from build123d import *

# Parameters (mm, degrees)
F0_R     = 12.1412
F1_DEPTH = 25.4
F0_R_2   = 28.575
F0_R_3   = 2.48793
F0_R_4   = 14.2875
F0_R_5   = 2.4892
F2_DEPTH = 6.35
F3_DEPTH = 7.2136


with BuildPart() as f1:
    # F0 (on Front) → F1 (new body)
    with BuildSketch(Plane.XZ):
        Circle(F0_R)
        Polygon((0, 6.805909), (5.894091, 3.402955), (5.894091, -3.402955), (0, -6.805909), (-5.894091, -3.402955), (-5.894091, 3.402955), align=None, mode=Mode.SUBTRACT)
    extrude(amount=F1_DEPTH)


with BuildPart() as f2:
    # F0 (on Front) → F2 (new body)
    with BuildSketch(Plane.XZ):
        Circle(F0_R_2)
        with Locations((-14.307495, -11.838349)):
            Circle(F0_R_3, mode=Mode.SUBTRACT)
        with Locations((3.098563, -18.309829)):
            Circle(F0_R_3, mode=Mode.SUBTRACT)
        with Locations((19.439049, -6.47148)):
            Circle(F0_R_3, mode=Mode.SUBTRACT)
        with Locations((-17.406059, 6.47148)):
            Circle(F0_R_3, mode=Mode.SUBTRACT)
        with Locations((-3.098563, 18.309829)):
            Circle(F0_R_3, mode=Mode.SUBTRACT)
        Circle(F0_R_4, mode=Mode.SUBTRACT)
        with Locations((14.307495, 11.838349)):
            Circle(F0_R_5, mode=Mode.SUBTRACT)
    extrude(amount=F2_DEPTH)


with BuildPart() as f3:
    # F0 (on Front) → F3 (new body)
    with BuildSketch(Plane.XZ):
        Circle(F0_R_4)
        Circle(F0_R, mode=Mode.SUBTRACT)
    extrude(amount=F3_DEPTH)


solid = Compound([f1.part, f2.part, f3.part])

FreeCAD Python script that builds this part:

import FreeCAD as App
import Part
import Sketcher

V = App.Vector
Q = App.Units.Quantity


def add_polygon(sketch, points):
    """Adds a closed chain of lines whose ends are joined by coincident constraints."""
    first, n = sketch.GeometryCount, len(points)
    for a, b in zip(points, points[1:] + points[:1]):
        sketch.addGeometry(Part.LineSegment(App.Vector(*a, 0), App.Vector(*b, 0)), False)
    for i in range(n):
        sketch.addConstraint(Sketcher.Constraint("Coincident", first + i, 2, first + (i + 1) % n, 1))

doc = App.newDocument("Part")
body = doc.addObject("PartDesign::Body", "Body")

# Sketch on XZ plane
sketch1 = doc.addObject("Sketcher::SketchObject", "Sketch")
body.addObject(sketch1)
sketch1.AttachmentSupport = (doc.XZ_Plane, [""])
sketch1.MapMode = "FlatFace"
sketch1.addGeometry(Part.Circle(V(0, 0, 0), V(0, 0, 1), 12), False)  # 0
add_polygon(sketch1, [(-6, 3), (0, 7), (6, 3), (6, -3), (0, -7), (-6, -3)])  # lines 1-6
sketch1.addConstraint([
    Sketcher.Constraint("Vertical", 3),
    Sketcher.Constraint("Vertical", 6),
    Sketcher.Constraint("Coincident", 0, 3, -1, 1),
    Sketcher.Constraint("Symmetric", 1, 2, 4, 2, -1, 1),
    Sketcher.Constraint("Symmetric", 2, 2, 5, 2, -1, 1),
    Sketcher.Constraint("PointOnObject", 1, 2, -2),
    Sketcher.Constraint("Parallel", 1, 4),
    Sketcher.Constraint("Horizontal", 3, 2, 5, 2),
    Sketcher.Constraint("Diameter", 0, Q("0.956 in")),
    Sketcher.Constraint("Angle", 1, Q("29.999993 deg")),
    Sketcher.Constraint("DistanceY", 3, 2, 3, 1, Q("6.80591 mm")),
    Sketcher.Constraint("Distance", 1, Q("6.80591 mm")),
])
pad1 = doc.addObject("PartDesign::Pad", "Pad")
body.addObject(pad1)
pad1.Profile = sketch1
pad1.Length = Q("1 in")
body2 = doc.addObject("PartDesign::Body", "Body001")

# Sketch on XZ plane
sketch2 = doc.addObject("Sketcher::SketchObject", "Sketch001")
body2.addObject(sketch2)
sketch2.AttachmentSupport = (doc.getObject("XZ_Plane001"), [""])
sketch2.MapMode = "FlatFace"
sketch2.addGeometry([
    Part.Circle(V(0, 0, 0), V(0, 0, 1), 28.6),  # 0
    Part.Circle(V(-14.3, -11.8, 0), V(0, 0, 1), 2.5),  # 1
    Part.Circle(V(3.1, -18.3, 0), V(0, 0, 1), 2.5),  # 2
    Part.Circle(V(19.4, -6.5, 0), V(0, 0, 1), 2.5),  # 3
    Part.Circle(V(-17.4, 6.5, 0), V(0, 0, 1), 2.5),  # 4
    Part.Circle(V(0, 0, 0), V(0, 0, 1), 14.3),  # 5
    Part.Circle(V(-3.1, 18.3, 0), V(0, 0, 1), 2.5),  # 6
    Part.Circle(V(14.3, 11.8, 0), V(0, 0, 1), 2.5),  # 7
], False)
sketch2.addConstraint([
    Sketcher.Constraint("Coincident", 0, 3, -1, 1),
    Sketcher.Constraint("Coincident", 5, 3, -1, 1),
    Sketcher.Constraint("Equal", 1, 2),
    Sketcher.Constraint("Equal", 2, 3),
    Sketcher.Constraint("Equal", 3, 4),
    Sketcher.Constraint("Equal", 4, 6),
    Sketcher.Constraint("Symmetric", 2, 3, 6, 3, -1, 1),
    Sketcher.Constraint("Symmetric", 1, 3, 7, 3, -1, 1),
    Sketcher.Constraint("Diameter", 0, Q("2.25 in")),
    Sketcher.Constraint("Diameter", 5, Q("1.125 in")),
    Sketcher.Constraint("Diameter", 7, Q("0.196 in")),
    Sketcher.Constraint("Diameter", 1, Q("0.1959 in")),
    Sketcher.Constraint("DistanceY", 1, 3, -1, 1, Q("11.838349 mm")),
    Sketcher.Constraint("DistanceY", 2, 3, -1, 1, Q("18.309829 mm")),
    Sketcher.Constraint("DistanceX", -1, 1, 3, 3, Q("19.439049 mm")),
    Sketcher.Constraint("DistanceY", 3, 3, -1, 1, Q("6.47148 mm")),
    Sketcher.Constraint("DistanceX", 4, 3, -1, 1, Q("17.406059 mm")),
    Sketcher.Constraint("DistanceY", -1, 1, 4, 3, Q("6.47148 mm")),
    Sketcher.Constraint("DistanceX", 4, 3, 2, 3, Q("20.504622 mm")),
    Sketcher.Constraint("DistanceX", 1, 3, 6, 3, Q("11.208932 mm")),
])
pad2 = doc.addObject("PartDesign::Pad", "Pad001")
body2.addObject(pad2)
pad2.Profile = sketch2
pad2.Length = Q("0.25 in")
body3 = doc.addObject("PartDesign::Body", "Body002")

# Sketch on XZ plane
sketch3 = doc.addObject("Sketcher::SketchObject", "Sketch002")
body3.addObject(sketch3)
sketch3.AttachmentSupport = (doc.getObject("XZ_Plane002"), [""])
sketch3.MapMode = "FlatFace"
sketch3.addGeometry([
    Part.Circle(V(0, 0, 0), V(0, 0, 1), 14),
    Part.Circle(V(0, 0, 0), V(0, 0, 1), 12),
], False)
sketch3.addConstraint([
    Sketcher.Constraint("Coincident", 0, 3, -1, 1),
    Sketcher.Constraint("Coincident", 1, 3, -1, 1),
    Sketcher.Constraint("Diameter", 0, Q("1.125 in")),
    Sketcher.Constraint("Diameter", 1, Q("0.956 in")),
])
pad3 = doc.addObject("PartDesign::Pad", "Pad002")
body3.addObject(pad3)
pad3.Profile = sketch3
pad3.Length = Q("0.284 in")

doc.recompute()
